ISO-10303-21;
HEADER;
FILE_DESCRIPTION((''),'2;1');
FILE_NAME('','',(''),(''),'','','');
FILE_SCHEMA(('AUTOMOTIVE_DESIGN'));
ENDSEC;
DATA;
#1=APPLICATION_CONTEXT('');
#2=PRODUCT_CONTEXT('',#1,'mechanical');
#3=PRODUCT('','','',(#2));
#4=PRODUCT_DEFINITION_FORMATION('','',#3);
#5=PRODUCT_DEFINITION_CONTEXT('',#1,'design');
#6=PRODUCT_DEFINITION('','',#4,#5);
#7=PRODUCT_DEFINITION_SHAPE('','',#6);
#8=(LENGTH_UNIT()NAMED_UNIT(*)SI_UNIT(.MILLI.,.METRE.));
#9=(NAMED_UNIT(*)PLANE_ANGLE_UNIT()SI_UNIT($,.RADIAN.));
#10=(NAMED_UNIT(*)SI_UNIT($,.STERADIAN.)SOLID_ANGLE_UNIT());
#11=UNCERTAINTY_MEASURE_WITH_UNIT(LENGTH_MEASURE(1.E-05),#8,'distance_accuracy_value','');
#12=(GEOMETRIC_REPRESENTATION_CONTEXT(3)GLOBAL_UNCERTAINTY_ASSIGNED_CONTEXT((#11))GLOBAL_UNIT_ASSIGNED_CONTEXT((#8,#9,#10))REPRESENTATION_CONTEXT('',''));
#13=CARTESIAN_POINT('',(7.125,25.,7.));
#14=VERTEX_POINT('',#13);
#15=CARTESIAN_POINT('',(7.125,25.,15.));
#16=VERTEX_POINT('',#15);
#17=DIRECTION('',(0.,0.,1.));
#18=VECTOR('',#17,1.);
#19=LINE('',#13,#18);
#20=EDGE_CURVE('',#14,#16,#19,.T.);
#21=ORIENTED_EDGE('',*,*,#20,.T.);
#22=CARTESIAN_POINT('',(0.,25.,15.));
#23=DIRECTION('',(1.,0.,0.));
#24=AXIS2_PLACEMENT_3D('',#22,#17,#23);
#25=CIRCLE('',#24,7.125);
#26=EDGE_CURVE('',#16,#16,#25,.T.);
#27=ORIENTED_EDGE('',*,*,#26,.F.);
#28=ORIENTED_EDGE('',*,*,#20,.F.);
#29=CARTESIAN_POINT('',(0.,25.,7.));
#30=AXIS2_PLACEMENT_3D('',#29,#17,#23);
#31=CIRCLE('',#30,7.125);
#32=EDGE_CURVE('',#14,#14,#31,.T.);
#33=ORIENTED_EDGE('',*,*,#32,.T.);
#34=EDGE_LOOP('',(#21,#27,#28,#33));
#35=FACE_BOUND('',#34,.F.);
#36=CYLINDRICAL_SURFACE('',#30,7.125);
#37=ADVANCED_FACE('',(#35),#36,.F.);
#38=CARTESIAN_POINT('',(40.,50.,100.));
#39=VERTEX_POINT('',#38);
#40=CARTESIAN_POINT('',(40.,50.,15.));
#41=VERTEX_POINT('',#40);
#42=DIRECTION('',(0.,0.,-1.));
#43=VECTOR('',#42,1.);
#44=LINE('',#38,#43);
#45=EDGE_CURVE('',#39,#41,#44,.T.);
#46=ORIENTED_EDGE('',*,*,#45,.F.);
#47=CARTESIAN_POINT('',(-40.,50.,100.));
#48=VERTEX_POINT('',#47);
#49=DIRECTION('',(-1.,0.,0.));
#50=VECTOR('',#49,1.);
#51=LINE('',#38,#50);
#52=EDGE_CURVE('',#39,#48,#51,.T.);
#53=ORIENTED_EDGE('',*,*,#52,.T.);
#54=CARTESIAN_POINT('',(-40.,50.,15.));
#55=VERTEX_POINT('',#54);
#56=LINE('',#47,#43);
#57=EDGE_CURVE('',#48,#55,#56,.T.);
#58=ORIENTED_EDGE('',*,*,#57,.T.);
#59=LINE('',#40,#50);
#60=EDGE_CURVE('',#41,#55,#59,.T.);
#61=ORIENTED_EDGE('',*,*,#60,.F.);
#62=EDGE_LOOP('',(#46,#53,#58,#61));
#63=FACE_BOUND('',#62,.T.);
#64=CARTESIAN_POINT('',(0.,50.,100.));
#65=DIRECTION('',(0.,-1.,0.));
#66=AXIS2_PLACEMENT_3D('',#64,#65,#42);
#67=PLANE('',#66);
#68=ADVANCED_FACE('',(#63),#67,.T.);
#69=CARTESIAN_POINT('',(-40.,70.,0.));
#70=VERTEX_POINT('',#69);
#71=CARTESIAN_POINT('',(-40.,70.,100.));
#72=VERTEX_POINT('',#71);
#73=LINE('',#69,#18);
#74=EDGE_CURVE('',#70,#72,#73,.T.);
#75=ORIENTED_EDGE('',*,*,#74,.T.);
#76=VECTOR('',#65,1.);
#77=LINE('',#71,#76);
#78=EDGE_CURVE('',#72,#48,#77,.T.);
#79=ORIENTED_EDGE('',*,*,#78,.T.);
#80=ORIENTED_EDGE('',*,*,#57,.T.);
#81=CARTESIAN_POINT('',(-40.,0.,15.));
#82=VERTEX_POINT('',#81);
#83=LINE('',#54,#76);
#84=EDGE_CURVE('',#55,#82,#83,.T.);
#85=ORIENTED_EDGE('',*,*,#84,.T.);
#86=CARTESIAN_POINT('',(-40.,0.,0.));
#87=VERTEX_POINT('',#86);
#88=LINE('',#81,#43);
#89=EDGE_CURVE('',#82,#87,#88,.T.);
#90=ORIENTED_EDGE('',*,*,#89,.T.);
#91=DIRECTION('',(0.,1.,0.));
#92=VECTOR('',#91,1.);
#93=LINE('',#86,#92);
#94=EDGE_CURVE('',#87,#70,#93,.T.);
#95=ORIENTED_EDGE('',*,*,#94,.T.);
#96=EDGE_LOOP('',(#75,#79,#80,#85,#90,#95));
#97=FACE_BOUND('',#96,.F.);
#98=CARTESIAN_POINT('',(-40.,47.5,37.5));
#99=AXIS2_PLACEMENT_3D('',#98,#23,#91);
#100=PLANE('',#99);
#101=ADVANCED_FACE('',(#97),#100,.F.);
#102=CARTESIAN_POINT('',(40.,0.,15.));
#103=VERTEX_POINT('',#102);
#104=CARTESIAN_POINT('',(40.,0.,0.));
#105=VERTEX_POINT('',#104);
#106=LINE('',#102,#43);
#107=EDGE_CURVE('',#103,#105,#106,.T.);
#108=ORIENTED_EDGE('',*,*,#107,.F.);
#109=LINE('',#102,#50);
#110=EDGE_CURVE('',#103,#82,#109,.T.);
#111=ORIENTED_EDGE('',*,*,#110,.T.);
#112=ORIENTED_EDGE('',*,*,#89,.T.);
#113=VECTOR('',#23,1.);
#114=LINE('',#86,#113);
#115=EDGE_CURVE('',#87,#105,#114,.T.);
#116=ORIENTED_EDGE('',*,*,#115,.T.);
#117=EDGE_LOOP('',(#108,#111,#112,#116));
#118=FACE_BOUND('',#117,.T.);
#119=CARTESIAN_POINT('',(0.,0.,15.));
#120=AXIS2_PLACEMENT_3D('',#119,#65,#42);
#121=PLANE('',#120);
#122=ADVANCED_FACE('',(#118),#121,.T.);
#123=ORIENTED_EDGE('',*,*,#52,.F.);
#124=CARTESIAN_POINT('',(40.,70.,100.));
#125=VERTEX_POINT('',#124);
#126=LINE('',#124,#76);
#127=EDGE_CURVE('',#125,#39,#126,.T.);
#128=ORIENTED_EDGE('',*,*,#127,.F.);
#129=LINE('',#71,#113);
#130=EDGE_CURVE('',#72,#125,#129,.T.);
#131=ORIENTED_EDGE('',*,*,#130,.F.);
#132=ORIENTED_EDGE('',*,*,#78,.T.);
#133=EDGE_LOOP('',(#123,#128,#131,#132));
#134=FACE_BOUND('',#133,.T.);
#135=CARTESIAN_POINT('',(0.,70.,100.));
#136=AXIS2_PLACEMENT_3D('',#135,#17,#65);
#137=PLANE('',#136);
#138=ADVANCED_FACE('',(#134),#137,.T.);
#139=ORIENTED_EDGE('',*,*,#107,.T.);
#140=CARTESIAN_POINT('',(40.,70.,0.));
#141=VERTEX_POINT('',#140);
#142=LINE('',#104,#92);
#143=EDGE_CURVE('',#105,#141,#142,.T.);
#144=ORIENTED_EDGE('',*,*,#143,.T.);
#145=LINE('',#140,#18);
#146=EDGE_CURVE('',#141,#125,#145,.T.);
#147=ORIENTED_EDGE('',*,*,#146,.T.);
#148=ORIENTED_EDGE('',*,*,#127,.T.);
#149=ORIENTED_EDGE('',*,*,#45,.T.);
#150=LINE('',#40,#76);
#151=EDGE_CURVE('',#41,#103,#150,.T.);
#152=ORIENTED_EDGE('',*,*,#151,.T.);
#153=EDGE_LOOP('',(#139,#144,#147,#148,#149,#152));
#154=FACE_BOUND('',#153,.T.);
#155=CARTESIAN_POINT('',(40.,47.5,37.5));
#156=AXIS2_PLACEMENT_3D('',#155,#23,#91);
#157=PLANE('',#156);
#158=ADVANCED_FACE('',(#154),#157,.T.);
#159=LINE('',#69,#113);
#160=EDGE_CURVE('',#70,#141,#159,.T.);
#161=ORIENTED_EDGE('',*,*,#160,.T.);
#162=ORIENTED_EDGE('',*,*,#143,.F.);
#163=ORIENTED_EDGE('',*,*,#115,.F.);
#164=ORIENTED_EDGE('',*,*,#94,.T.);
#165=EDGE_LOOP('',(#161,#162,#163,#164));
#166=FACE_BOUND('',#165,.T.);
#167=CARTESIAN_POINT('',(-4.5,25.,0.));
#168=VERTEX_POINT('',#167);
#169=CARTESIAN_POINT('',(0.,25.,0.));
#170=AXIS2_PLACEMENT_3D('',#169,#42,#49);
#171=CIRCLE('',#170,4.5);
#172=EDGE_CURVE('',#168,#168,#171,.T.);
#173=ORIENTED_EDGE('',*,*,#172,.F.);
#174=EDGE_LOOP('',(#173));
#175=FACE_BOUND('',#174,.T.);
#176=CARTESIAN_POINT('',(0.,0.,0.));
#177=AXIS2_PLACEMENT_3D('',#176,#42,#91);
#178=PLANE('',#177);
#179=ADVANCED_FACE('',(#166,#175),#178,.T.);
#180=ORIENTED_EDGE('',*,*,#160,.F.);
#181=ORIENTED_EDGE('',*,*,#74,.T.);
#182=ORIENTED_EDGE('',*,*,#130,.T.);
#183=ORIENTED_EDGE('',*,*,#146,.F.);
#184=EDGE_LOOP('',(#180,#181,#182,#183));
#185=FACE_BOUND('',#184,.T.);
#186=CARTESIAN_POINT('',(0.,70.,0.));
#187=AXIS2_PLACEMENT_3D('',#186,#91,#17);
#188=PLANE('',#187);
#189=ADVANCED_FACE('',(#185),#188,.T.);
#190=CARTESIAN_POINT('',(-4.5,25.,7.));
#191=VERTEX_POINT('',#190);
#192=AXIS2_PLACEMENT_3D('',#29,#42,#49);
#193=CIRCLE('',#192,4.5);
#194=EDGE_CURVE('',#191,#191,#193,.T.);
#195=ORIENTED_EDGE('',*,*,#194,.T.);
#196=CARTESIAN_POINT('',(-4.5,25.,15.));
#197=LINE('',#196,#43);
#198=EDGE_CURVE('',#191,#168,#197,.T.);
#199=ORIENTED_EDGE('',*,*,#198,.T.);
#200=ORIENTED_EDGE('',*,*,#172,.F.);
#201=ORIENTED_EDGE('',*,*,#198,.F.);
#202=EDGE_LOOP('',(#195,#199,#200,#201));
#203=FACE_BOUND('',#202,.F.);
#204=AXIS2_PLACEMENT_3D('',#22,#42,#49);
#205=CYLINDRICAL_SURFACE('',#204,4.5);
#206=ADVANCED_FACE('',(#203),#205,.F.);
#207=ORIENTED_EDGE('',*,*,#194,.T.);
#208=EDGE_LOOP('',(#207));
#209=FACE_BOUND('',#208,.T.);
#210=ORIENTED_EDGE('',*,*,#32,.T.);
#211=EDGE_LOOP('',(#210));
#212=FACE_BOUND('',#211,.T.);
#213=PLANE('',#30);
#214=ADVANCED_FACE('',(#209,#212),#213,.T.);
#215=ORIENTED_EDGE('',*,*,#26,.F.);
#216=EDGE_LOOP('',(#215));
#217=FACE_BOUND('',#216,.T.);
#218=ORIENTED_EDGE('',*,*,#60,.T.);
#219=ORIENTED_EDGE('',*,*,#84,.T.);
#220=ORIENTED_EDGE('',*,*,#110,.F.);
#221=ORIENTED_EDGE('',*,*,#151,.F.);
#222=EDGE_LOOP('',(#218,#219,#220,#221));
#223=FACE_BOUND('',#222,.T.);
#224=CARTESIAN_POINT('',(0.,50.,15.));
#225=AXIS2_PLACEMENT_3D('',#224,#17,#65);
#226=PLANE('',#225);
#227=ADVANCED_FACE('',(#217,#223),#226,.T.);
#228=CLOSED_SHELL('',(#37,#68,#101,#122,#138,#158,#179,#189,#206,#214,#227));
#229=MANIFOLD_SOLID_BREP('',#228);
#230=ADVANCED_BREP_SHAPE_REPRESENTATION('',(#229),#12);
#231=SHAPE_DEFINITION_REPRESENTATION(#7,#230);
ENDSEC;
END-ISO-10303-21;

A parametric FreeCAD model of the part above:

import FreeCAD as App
import Part
import Sketcher
from FreeCAD import Vector
Q = App.Units.Quantity


def add_polygon(sketch, points):
    """Adds a closed chain of lines whose ends are joined by coincident constraints."""
    first, n = sketch.GeometryCount, len(points)
    for a, b in zip(points, points[1:] + points[:1]):
        sketch.addGeometry(Part.LineSegment(App.Vector(*a, 0), App.Vector(*b, 0)), False)
    for i in range(n):
        sketch.addConstraint(Sketcher.Constraint("Coincident", first + i, 2, first + (i + 1) % n, 1))

doc = App.newDocument("Part")
body = doc.addObject("PartDesign::Body", "Body")

sketch1 = doc.addObject("Sketcher::SketchObject", "Sketch")
body.addObject(sketch1)
sketch1.AttachmentSupport = (doc.YZ_Plane, [""])
sketch1.MapMode = "FlatFace"
add_polygon(sketch1, [(0, 15), (0, 0), (70, 0), (70, 100), (50, 100), (50, 15)])
sketch1.addConstraint(Sketcher.Constraint("Vertical", 0))
sketch1.addConstraint(Sketcher.Constraint("Horizontal", 1))
sketch1.addConstraint(Sketcher.Constraint("Vertical", 2))
sketch1.addConstraint(Sketcher.Constraint("Horizontal", 3))
sketch1.addConstraint(Sketcher.Constraint("Vertical", 4))
sketch1.addConstraint(Sketcher.Constraint("Horizontal", 5))
sketch1.addConstraint(Sketcher.Constraint("Coincident", 0, 2, -1, 1))
sketch1.addConstraint(Sketcher.Constraint("DistanceX", 1, 1, 1, 2, Q("70 mm")))
sketch1.addConstraint(Sketcher.Constraint("DistanceX", 3, 2, 3, 1, Q("20 mm")))
sketch1.addConstraint(Sketcher.Constraint("DistanceY", 0, 2, 0, 1, Q("15 mm")))
sketch1.addConstraint(Sketcher.Constraint("DistanceY", 2, 1, 2, 2, Q("100 mm")))
pad1 = doc.addObject("PartDesign::Pad", "Pad")
body.addObject(pad1)
pad1.Profile = sketch1
pad1.Length = 80
pad1.Midplane = True

sketch2 = doc.addObject("Sketcher::SketchObject", "Sketch001")
body.addObject(sketch2)
sketch2.AttachmentSupport = (doc.XY_Plane, [""])
sketch2.MapMode = "FlatFace"
sketch2.AttachmentOffset = App.Placement(Vector(0, 0, 15), App.Rotation())
sketch2.addGeometry(Part.Circle(Vector(0, 25, 0), Vector(0, 0, 1), 4.5), False)
sketch2.addConstraint(Sketcher.Constraint("PointOnObject", 0, 3, -2))
sketch2.addConstraint(Sketcher.Constraint("Diameter", 0, Q("9 mm")))
sketch2.addConstraint(Sketcher.Constraint("DistanceY", -1, 1, 0, 3, Q("25 mm")))
doc.recompute()
hole = doc.addObject("PartDesign::Hole", "Hole")
body.addObject(hole)
hole.Profile = sketch2
hole.ThreadType = "None"
hole.Diameter = 9
hole.DepthType = "ThroughAll"
hole.HoleCutType = "Counterbore"
hole.HoleCutDiameter = 14.25
hole.HoleCutDepth = 8

doc.recompute()
